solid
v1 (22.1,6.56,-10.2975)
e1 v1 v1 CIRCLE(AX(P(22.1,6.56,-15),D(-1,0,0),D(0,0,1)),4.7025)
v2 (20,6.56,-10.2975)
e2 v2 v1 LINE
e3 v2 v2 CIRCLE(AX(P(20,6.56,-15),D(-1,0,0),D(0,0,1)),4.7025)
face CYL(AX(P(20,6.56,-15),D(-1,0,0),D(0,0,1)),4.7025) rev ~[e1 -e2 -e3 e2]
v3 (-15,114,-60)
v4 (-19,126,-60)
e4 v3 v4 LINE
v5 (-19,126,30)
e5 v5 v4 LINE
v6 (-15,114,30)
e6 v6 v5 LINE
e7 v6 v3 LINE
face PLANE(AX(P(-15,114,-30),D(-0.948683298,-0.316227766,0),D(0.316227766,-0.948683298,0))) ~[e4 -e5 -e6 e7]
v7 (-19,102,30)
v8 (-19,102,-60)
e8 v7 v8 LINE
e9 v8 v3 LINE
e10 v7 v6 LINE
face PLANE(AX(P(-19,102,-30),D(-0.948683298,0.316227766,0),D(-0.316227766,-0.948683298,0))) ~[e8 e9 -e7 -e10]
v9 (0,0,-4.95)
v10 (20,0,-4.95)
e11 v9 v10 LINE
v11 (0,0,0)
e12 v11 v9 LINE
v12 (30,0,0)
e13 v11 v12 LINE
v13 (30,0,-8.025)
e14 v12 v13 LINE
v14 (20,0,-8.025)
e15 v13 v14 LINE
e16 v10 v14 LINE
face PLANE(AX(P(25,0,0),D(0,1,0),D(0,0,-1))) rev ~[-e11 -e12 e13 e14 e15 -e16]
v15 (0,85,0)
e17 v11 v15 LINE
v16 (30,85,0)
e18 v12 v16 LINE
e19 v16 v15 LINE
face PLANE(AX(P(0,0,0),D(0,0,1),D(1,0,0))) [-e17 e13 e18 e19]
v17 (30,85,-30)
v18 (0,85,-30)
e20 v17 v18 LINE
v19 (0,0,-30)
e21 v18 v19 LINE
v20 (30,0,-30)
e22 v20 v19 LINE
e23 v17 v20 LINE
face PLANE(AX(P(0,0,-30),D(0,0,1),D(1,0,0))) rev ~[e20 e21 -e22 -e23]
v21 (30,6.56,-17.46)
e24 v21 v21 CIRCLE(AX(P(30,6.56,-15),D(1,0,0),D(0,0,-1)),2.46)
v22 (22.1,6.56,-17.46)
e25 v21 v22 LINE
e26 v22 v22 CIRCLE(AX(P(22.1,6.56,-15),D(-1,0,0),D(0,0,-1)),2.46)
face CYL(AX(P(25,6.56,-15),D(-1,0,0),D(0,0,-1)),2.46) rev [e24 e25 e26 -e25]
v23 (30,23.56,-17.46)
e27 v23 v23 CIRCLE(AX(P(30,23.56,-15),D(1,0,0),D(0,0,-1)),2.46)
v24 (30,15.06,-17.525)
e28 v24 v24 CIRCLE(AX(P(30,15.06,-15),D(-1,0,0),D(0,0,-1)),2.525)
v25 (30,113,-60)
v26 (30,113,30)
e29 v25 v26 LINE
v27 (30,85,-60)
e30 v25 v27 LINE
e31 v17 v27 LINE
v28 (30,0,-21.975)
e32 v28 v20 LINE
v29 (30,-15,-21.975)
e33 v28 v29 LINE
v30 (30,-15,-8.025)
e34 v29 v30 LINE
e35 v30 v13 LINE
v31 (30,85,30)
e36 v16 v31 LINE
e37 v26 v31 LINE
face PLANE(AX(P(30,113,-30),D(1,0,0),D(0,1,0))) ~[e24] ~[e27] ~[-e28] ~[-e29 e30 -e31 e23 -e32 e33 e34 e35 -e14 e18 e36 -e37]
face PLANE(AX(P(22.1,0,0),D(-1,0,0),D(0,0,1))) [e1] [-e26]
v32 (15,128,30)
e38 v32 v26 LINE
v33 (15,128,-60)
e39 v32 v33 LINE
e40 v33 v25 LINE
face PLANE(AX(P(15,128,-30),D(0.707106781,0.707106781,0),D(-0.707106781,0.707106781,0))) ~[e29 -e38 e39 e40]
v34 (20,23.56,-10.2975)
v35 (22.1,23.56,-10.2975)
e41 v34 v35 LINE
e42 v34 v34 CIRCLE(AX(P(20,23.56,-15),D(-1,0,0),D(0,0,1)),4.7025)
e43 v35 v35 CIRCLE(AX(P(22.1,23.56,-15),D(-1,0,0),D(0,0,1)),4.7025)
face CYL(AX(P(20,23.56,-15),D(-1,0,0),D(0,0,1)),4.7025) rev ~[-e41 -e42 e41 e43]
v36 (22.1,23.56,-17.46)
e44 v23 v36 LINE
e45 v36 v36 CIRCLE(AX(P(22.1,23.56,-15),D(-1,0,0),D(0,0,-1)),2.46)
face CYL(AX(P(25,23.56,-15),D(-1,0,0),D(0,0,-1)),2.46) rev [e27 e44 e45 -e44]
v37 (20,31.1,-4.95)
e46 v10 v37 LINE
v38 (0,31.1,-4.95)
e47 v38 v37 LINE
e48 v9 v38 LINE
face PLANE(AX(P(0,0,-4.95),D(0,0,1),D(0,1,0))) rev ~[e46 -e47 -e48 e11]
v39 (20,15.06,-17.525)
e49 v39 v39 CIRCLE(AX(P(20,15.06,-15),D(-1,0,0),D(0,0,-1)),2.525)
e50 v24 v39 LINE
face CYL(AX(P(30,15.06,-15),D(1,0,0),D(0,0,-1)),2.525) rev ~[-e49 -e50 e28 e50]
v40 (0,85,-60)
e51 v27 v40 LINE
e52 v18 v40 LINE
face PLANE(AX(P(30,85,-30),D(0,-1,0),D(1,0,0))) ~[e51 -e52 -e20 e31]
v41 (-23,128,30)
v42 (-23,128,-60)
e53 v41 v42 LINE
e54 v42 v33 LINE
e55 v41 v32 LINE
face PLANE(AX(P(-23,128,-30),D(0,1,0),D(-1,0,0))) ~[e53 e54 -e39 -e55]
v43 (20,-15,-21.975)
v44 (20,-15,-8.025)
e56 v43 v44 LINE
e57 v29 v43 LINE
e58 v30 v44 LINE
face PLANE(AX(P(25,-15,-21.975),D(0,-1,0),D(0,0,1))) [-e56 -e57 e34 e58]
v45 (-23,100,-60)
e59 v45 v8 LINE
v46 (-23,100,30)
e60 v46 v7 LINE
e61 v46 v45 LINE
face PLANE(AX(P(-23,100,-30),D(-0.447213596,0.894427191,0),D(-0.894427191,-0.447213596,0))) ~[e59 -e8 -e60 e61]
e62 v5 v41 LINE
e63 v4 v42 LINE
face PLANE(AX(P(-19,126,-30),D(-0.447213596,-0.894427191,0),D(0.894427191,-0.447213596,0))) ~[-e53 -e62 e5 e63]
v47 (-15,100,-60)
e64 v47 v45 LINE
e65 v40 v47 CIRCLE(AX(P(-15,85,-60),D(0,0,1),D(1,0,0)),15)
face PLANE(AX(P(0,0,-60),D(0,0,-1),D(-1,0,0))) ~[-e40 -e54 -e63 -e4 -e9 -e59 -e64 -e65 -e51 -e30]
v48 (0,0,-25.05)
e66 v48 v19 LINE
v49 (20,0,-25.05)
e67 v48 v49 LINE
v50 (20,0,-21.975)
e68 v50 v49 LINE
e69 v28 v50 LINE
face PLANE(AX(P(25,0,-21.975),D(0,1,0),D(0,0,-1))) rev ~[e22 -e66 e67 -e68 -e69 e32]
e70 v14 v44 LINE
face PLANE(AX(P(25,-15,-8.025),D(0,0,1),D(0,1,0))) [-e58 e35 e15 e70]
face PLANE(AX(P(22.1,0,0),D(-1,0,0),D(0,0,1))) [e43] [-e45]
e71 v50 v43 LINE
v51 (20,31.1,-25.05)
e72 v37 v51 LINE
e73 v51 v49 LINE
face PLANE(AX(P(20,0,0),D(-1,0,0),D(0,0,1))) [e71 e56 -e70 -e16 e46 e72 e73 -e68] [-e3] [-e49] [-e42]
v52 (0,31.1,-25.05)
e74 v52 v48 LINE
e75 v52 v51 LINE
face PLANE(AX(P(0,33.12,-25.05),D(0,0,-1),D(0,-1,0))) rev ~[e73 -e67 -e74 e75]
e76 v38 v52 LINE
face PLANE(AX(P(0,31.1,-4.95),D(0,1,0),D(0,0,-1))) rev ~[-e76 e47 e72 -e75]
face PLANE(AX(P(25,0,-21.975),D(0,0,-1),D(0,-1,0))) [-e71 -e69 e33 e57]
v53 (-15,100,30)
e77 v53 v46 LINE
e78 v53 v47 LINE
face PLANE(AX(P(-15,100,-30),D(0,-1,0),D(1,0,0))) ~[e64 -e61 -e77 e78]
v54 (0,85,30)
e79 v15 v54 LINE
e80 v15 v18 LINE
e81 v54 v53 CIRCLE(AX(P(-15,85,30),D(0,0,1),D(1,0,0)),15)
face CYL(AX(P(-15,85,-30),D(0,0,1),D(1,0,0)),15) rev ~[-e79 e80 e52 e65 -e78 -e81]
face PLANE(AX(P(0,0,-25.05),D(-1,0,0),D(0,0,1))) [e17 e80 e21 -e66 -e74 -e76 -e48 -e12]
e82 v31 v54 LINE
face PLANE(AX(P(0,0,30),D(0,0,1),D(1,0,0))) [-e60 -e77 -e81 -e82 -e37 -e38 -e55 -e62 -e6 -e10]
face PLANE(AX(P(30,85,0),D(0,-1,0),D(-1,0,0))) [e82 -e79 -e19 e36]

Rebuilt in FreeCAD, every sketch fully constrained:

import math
import FreeCAD as App
import Part
import Sketcher
from FreeCAD import Vector
Q = App.Units.Quantity

doc = App.newDocument("Part")
body = doc.addObject("PartDesign::Body", "Body")

# Sketch on XY plane
sketch1 = body.newObject("Sketcher::SketchObject", "Sketch")
sketch1.AttachmentSupport = (doc.getObject("XY_Plane"), [""])
sketch1.MapMode = "FlatFace"
sketch1.addGeometry([
    Part.LineSegment(Vector(0, 40, 0), Vector(0, 0, 0)),
    Part.LineSegment(Vector(0, 0, 0), Vector(25, 0, 0)),
    Part.LineSegment(Vector(25, 0, 0), Vector(25, 40, 0)),
    Part.LineSegment(Vector(25, 40, 0), Vector(0, 40, 0)),
], False)
sketch1.addConstraint([
    Sketcher.Constraint("Coincident", 0, 2, 1, 1),
    Sketcher.Constraint("Coincident", 1, 2, 2, 1),
    Sketcher.Constraint("Coincident", 2, 2, 3, 1),
    Sketcher.Constraint("Coincident", 3, 2, 0, 1),
    Sketcher.Constraint("Vertical", 0),
    Sketcher.Constraint("Horizontal", 1),
    Sketcher.Constraint("Vertical", 2),
    Sketcher.Constraint("Horizontal", 3),
    Sketcher.Constraint("Coincident", 0, 2, -1, 1),
    Sketcher.Constraint("DistanceX", 1, 1, 1, 2, 25.0),
    Sketcher.Constraint("DistanceY", 0, 2, 0, 1, 40.0),
])
pad1 = body.newObject("PartDesign::Pad", "Pad")
pad1.Profile = sketch1
pad1.Length = 30
pad1.Reversed = True

# Sketch on YZ plane
sketch2 = body.newObject("Sketcher::SketchObject", "Sketch001")
sketch2.AttachmentSupport = (doc.getObject("YZ_Plane"), [""])
sketch2.MapMode = "FlatFace"
sketch2.AttachmentOffset = App.Placement(Vector(0, 0, 25), App.Rotation())
sketch2.addGeometry(Part.Circle(Vector(6.6, -15, 0), Vector(0, 0, 1), 2.5), False)
sketch2.addConstraint([
    Sketcher.Constraint("Diameter", 0, 4.92),
    Sketcher.Constraint("DistanceY", 0, 3, -1, 1, 15.0),
    Sketcher.Constraint("DistanceX", -1, 1, 0, 3, 6.56),
])
pocket1 = body.newObject("PartDesign::Pocket", "Pocket")
pocket1.Profile = sketch2
pocket1.Length = 30

# Sketch on YZ plane
sketch3 = body.newObject("Sketcher::SketchObject", "Sketch002")
sketch3.AttachmentSupport = (doc.getObject("YZ_Plane"), [""])
sketch3.MapMode = "FlatFace"
sketch3.addGeometry([
    Part.LineSegment(Vector(0, -25, 0), Vector(0, -5, 0)),
    Part.LineSegment(Vector(0, -5, 0), Vector(33, -5, 0)),
    Part.LineSegment(Vector(33, -5, 0), Vector(33, -25, 0)),
    Part.LineSegment(Vector(33, -25, 0), Vector(0, -25, 0)),
], False)
sketch3.addConstraint([
    Sketcher.Constraint("Coincident", 0, 2, 1, 1),
    Sketcher.Constraint("Coincident", 1, 2, 2, 1),
    Sketcher.Constraint("Coincident", 2, 2, 3, 1),
    Sketcher.Constraint("Coincident", 3, 2, 0, 1),
    Sketcher.Constraint("Vertical", 0),
    Sketcher.Constraint("Horizontal", 1),
    Sketcher.Constraint("Vertical", 2),
    Sketcher.Constraint("Horizontal", 3),
    Sketcher.Constraint("PointOnObject", 0, 2, -2),
    Sketcher.Constraint("DistanceY", 0, 1, 0, 2, 20.1),
    Sketcher.Constraint("DistanceX", 1, 1, 1, 2, 33.12),
    Sketcher.Constraint("DistanceY", 0, 2, -1, 1, 4.95),
])
pocket2 = body.newObject("PartDesign::Pocket", "Pocket001")
pocket2.Profile = sketch3
pocket2.Length = 20
pocket2.Reversed = True

# Sketch on XZ plane
sketch4 = body.newObject("Sketcher::SketchObject", "Sketch003")
sketch4.AttachmentSupport = (doc.getObject("XZ_Plane"), [""])
sketch4.MapMode = "FlatFace"
sketch4.addGeometry([
    Part.LineSegment(Vector(25, -8, 0), Vector(20, -8, 0)),
    Part.LineSegment(Vector(20, -8, 0), Vector(20, -22, 0)),
    Part.LineSegment(Vector(20, -22, 0), Vector(25, -22, 0)),
    Part.LineSegment(Vector(25, -22, 0), Vector(25, -8, 0)),
], False)
sketch4.addConstraint([
    Sketcher.Constraint("Coincident", 0, 2, 1, 1),
    Sketcher.Constraint("Coincident", 1, 2, 2, 1),
    Sketcher.Constraint("Coincident", 2, 2, 3, 1),
    Sketcher.Constraint("Coincident", 3, 2, 0, 1),
    Sketcher.Constraint("Horizontal", 0),
    Sketcher.Constraint("Vertical", 1),
    Sketcher.Constraint("Horizontal", 2),
    Sketcher.Constraint("Vertical", 3),
    Sketcher.Constraint("DistanceY", 1, 2, 1, 1, 13.95),
    Sketcher.Constraint("DistanceX", 0, 2, 0, 1, 5.0),
    Sketcher.Constraint("DistanceX", -1, 1, 0, 2, 20.0),
    Sketcher.Constraint("DistanceY", 0, 2, -1, 1, 8.025),
])
pad2 = body.newObject("PartDesign::Pad", "Pad001")
pad2.Profile = sketch4
pad2.Length = 15

# Sketch on YZ plane
sketch5 = body.newObject("Sketcher::SketchObject", "Sketch004")
sketch5.AttachmentSupport = (doc.getObject("YZ_Plane"), [""])
sketch5.MapMode = "FlatFace"
sketch5.AttachmentOffset = App.Placement(Vector(0, 0, 20), App.Rotation())
sketch5.addGeometry([
    Part.Circle(Vector(6.6, -15, 0), Vector(0, 0, 1), 4.7),
    Part.Circle(Vector(6.6, -15, 0), Vector(0, 0, 1), 2.5),
], False)
sketch5.addConstraint([
    Sketcher.Constraint("Coincident", 1, 3, 0, 3),
    Sketcher.Constraint("Diameter", 0, 9.405),
    Sketcher.Constraint("Diameter", 1, 4.92),
    Sketcher.Constraint("DistanceY", 0, 3, -1, 1, 15.0),
    Sketcher.Constraint("DistanceX", -1, 1, 0, 3, 6.56),
])
pocket3 = body.newObject("PartDesign::Pocket", "Pocket002")
pocket3.Profile = sketch5
pocket3.Length = 2.1
pocket3.Reversed = True

# Sketch on YZ plane
sketch6 = body.newObject("Sketcher::SketchObject", "Sketch005")
sketch6.AttachmentSupport = (doc.getObject("YZ_Plane"), [""])
sketch6.MapMode = "FlatFace"
sketch6.AttachmentOffset = App.Placement(Vector(0, 0, 25), App.Rotation())
sketch6.addGeometry(Part.Circle(Vector(23.6, -15, 0), Vector(0, 0, 1), 2.5), False)
sketch6.addConstraint([
    Sketcher.Constraint("Diameter", 0, 4.92),
    Sketcher.Constraint("DistanceY", 0, 3, -1, 1, 15.0),
    Sketcher.Constraint("DistanceX", -1, 1, 0, 3, 23.56),
])
pocket4 = body.newObject("PartDesign::Pocket", "Pocket003")
pocket4.Profile = sketch6
pocket4.Length = 10

# Sketch on YZ plane
sketch7 = body.newObject("Sketcher::SketchObject", "Sketch006")
sketch7.AttachmentSupport = (doc.getObject("YZ_Plane"), [""])
sketch7.MapMode = "FlatFace"
sketch7.AttachmentOffset = App.Placement(Vector(0, 0, 20), App.Rotation())
sketch7.addGeometry([
    Part.Circle(Vector(23.6, -15, 0), Vector(0, 0, 1), 4.7),
    Part.Circle(Vector(23.6, -15, 0), Vector(0, 0, 1), 2.5),
], False)
sketch7.addConstraint([
    Sketcher.Constraint("Coincident", 1, 3, 0, 3),
    Sketcher.Constraint("Diameter", 0, 9.405),
    Sketcher.Constraint("Diameter", 1, 4.92),
    Sketcher.Constraint("DistanceY", 0, 3, -1, 1, 15.0),
    Sketcher.Constraint("DistanceX", -1, 1, 0, 3, 23.56),
])
pocket5 = body.newObject("PartDesign::Pocket", "Pocket004")
pocket5.Profile = sketch7
pocket5.Length = 2.1
pocket5.Reversed = True

# Sketch on YZ plane
sketch8 = body.newObject("Sketcher::SketchObject", "Sketch007")
sketch8.AttachmentSupport = (doc.getObject("YZ_Plane"), [""])
sketch8.MapMode = "FlatFace"
sketch8.AttachmentOffset = App.Placement(Vector(0, 0, 25), App.Rotation())
sketch8.addGeometry([
    Part.LineSegment(Vector(0, -30, 0), Vector(40, -30, 0)),  # 0
    Part.LineSegment(Vector(40, -30, 0), Vector(40, 0, 0)),  # 1
    Part.LineSegment(Vector(40, 0, 0), Vector(0, 0, 0)),  # 2
    Part.LineSegment(Vector(0, 0, 0), Vector(0, -8, 0)),  # 3
    Part.LineSegment(Vector(0, -8, 0), Vector(-15, -8, 0)),  # 4
    Part.LineSegment(Vector(-15, -8, 0), Vector(-15, -22, 0)),  # 5
    Part.LineSegment(Vector(-15, -22, 0), Vector(0, -22, 0)),  # 6
    Part.LineSegment(Vector(0, -22, 0), Vector(0, -30, 0)),  # 7
    Part.Circle(Vector(6.6, -15, 0), Vector(0, 0, 1), 2.5),  # 8
    Part.Circle(Vector(23.6, -15, 0), Vector(0, 0, 1), 2.5),  # 9
], False)
sketch8.addConstraint([
    Sketcher.Constraint("Coincident", 0, 2, 1, 1),
    Sketcher.Constraint("Coincident", 1, 2, 2, 1),
    Sketcher.Constraint("Coincident", 2, 2, 3, 1),
    Sketcher.Constraint("Coincident", 3, 2, 4, 1),
    Sketcher.Constraint("Coincident", 4, 2, 5, 1),
    Sketcher.Constraint("Coincident", 5, 2, 6, 1),
    Sketcher.Constraint("Coincident", 6, 2, 7, 1),
    Sketcher.Constraint("Coincident", 7, 2, 0, 1),
    Sketcher.Constraint("Horizontal", 0),
    Sketcher.Constraint("Vertical", 1),
    Sketcher.Constraint("Horizontal", 2),
    Sketcher.Constraint("Vertical", 3),
    Sketcher.Constraint("Horizontal", 4),
    Sketcher.Constraint("Vertical", 5),
    Sketcher.Constraint("Horizontal", 6),
    Sketcher.Constraint("Vertical", 7),
    Sketcher.Constraint("Coincident", 2, 2, -1, 1),
    Sketcher.Constraint("Equal", 8, 9),
    Sketcher.Constraint("PointOnObject", 6, 2, -2),
    Sketcher.Constraint("Horizontal", 8, 3, 9, 3),
    Sketcher.Constraint("Equal", 3, 7),
    Sketcher.Constraint("Diameter", 8, 4.92),
    Sketcher.Constraint("DistanceX", 0, 1, 0, 2, 40.0),
    Sketcher.Constraint("DistanceX", 4, 2, 4, 1, 15.0),
    Sketcher.Constraint("DistanceY", 1, 1, 1, 2, 30.0),
    Sketcher.Constraint("DistanceY", 8, 3, -1, 1, 15.0),
    Sketcher.Constraint("DistanceX", 8, 3, 9, 3, 17.0),
    Sketcher.Constraint("DistanceY", 5, 2, 5, 1, 13.95),
    Sketcher.Constraint("DistanceX", -1, 1, 8, 3, 6.56),
])
pad3 = body.newObject("PartDesign::Pad", "Pad002")
pad3.Profile = sketch8
pad3.Length = 5

# Sketch on XZ plane
sketch9 = body.newObject("Sketcher::SketchObject", "Sketch008")
sketch9.AttachmentSupport = (doc.getObject("XZ_Plane"), [""])
sketch9.MapMode = "FlatFace"
sketch9.AttachmentOffset = App.Placement(Vector(0, 0, -40), App.Rotation())
sketch9.addGeometry([
    Part.LineSegment(Vector(30, -30, 0), Vector(0, -30, 0)),
    Part.LineSegment(Vector(0, -30, 0), Vector(0, 0, 0)),
    Part.LineSegment(Vector(0, 0, 0), Vector(30, 0, 0)),
    Part.LineSegment(Vector(30, 0, 0), Vector(30, -30, 0)),
], False)
sketch9.addConstraint([
    Sketcher.Constraint("Coincident", 0, 2, 1, 1),
    Sketcher.Constraint("Coincident", 1, 2, 2, 1),
    Sketcher.Constraint("Coincident", 2, 2, 3, 1),
    Sketcher.Constraint("Coincident", 3, 2, 0, 1),
    Sketcher.Constraint("Horizontal", 0),
    Sketcher.Constraint("Vertical", 1),
    Sketcher.Constraint("Horizontal", 2),
    Sketcher.Constraint("Vertical", 3),
    Sketcher.Constraint("Coincident", 1, 2, -1, 1),
    Sketcher.Constraint("Equal", 2, 1),
    Sketcher.Constraint("DistanceX", 0, 2, 0, 1, 30.0),
])
pad4 = body.newObject("PartDesign::Pad", "Pad003")
pad4.Profile = sketch9
pad4.Length = 30
pad4.Reversed = True

# Sketch on YZ plane
sketch10 = body.newObject("Sketcher::SketchObject", "Sketch009")
sketch10.AttachmentSupport = (doc.getObject("YZ_Plane"), [""])
sketch10.MapMode = "FlatFace"
sketch10.AttachmentOffset = App.Placement(Vector(0, 0, 30), App.Rotation())
sketch10.addGeometry(Part.Circle(Vector(15.1, -15, 0), Vector(0, 0, 1), 2.5), False)
sketch10.addConstraint([
    Sketcher.Constraint("Diameter", 0, 5.05),
    Sketcher.Constraint("DistanceY", 0, 3, -1, 1, 15.0),
    Sketcher.Constraint("DistanceX", -1, 1, 0, 3, 15.06),
])
pocket6 = body.newObject("PartDesign::Pocket", "Pocket005")
pocket6.Profile = sketch10
pocket6.Length = 30

# Sketch on XY plane
sketch11 = body.newObject("Sketcher::SketchObject", "Sketch010")
sketch11.AttachmentSupport = (doc.getObject("XY_Plane"), [""])
sketch11.MapMode = "FlatFace"
sketch11.addGeometry([
    Part.LineSegment(Vector(0, 70, 0), Vector(30, 70, 0)),  # 0
    Part.LineSegment(Vector(30, 70, 0), Vector(30, 113, 0)),  # 1
    Part.LineSegment(Vector(30, 113, 0), Vector(15, 128, 0)),  # 2
    Part.LineSegment(Vector(15, 128, 0), Vector(-23, 128, 0)),  # 3
    Part.LineSegment(Vector(-23, 128, 0), Vector(-19, 126, 0)),  # 4
    Part.LineSegment(Vector(-19, 126, 0), Vector(-15, 114, 0)),  # 5
    Part.LineSegment(Vector(-15, 114, 0), Vector(-19, 102, 0)),  # 6
    Part.LineSegment(Vector(-19, 102, 0), Vector(-23, 100, 0)),  # 7
    Part.LineSegment(Vector(-23, 100, 0), Vector(-15, 100, 0)),  # 8
    Part.ArcOfCircle(Part.Circle(Vector(-15, 85, 0), Vector(0, 0, 1), 15), math.radians(0), math.radians(90)),  # 9
    Part.LineSegment(Vector(0, 85, 0), Vector(0, 70, 0)),  # 10
], False)
sketch11.addConstraint([
    Sketcher.Constraint("Coincident", 0, 2, 1, 1),
    Sketcher.Constraint("Coincident", 1, 2, 2, 1),
    Sketcher.Constraint("Coincident", 2, 2, 3, 1),
    Sketcher.Constraint("Coincident", 3, 2, 4, 1),
    Sketcher.Constraint("Coincident", 4, 2, 5, 1),
    Sketcher.Constraint("Coincident", 5, 2, 6, 1),
    Sketcher.Constraint("Coincident", 6, 2, 7, 1),
    Sketcher.Constraint("Coincident", 7, 2, 8, 1),
    Sketcher.Constraint("Tangent", 8, 2, 9, 2),
    Sketcher.Constraint("Tangent", 9, 1, 10, 1),
    Sketcher.Constraint("Coincident", 10, 2, 0, 1),
    Sketcher.Constraint("Horizontal", 0),
    Sketcher.Constraint("Vertical", 1),
    Sketcher.Constraint("Horizontal", 3),
    Sketcher.Constraint("Horizontal", 8),
    Sketcher.Constraint("Vertical", 10),
    Sketcher.Constraint("PointOnObject", 9, 1, -2),
    Sketcher.Constraint("Vertical", 9, 3, 5, 2),
    Sketcher.Constraint("Vertical", 4, 2, 6, 2),
    Sketcher.Constraint("Vertical", 3, 2, 7, 2),
    Sketcher.Constraint("Equal", 5, 6),
    Sketcher.Constraint("Equal", 4, 7),
    Sketcher.Constraint("Radius", 9, 15.0),
    Sketcher.Constraint("DistanceX", 0, 1, 0, 2, 30.0),
    Sketcher.Constraint("DistanceY", 10, 2, 10, 1, 15.0),
    Sketcher.Constraint("DistanceX", -1, 1, 2, 2, 15.0),
    Sketcher.Constraint("DistanceY", 9, 3, 1, 2, 28.0),
    Sketcher.Constraint("DistanceY", 1, 2, 2, 2, 15.0),
    Sketcher.Constraint("DistanceX", 3, 2, 3, 1, 38.0),
    Sketcher.Constraint("DistanceY", -1, 1, 9, 3, 85.0),
    Sketcher.Constraint("DistanceX", 4, 2, -1, 1, 19.0),
    Sketcher.Constraint("DistanceY", -1, 1, 4, 2, 126.0),
])
pad5 = body.newObject("PartDesign::Pad", "Pad004")
pad5.Profile = sketch11
pad5.Length = 30
pad5.Reversed = True

# Sketch on YZ plane
sketch12 = body.newObject("Sketcher::SketchObject", "Sketch011")
sketch12.AttachmentSupport = (doc.getObject("YZ_Plane"), [""])
sketch12.MapMode = "FlatFace"
sketch12.addGeometry([
    Part.LineSegment(Vector(33.1, -5, 0), Vector(33.1, -25.1, 0)),
    Part.LineSegment(Vector(33.1, -25.1, 0), Vector(31.1, -25.1, 0)),
    Part.LineSegment(Vector(31.1, -25.1, 0), Vector(31.1, -5, 0)),
    Part.LineSegment(Vector(31.1, -5, 0), Vector(33.1, -5, 0)),
], False)
sketch12.addConstraint([
    Sketcher.Constraint("Coincident", 0, 2, 1, 1),
    Sketcher.Constraint("Coincident", 1, 2, 2, 1),
    Sketcher.Constraint("Coincident", 2, 2, 3, 1),
    Sketcher.Constraint("Coincident", 3, 2, 0, 1),
    Sketcher.Constraint("Vertical", 0),
    Sketcher.Constraint("Horizontal", 1),
    Sketcher.Constraint("Vertical", 2),
    Sketcher.Constraint("Horizontal", 3),
    Sketcher.Constraint("DistanceX", 1, 2, 1, 1, 2.02),
    Sketcher.Constraint("DistanceY", 0, 2, 0, 1, 20.1),
    Sketcher.Constraint("DistanceX", -1, 1, 1, 2, 31.1),
    Sketcher.Constraint("DistanceY", 0, 2, -1, 1, 25.05),
])
pad6 = body.newObject("PartDesign::Pad", "Pad005")
pad6.Profile = sketch12
pad6.Length = 20

# Sketch on XY plane
sketch13 = body.newObject("Sketcher::SketchObject", "Sketch012")
sketch13.AttachmentSupport = (doc.getObject("XY_Plane"), [""])
sketch13.MapMode = "FlatFace"
sketch13.addGeometry([
    Part.ArcOfCircle(Part.Circle(Vector(-15, 85, 0), Vector(0, 0, 1), 15), math.radians(0), math.radians(90)),  # 0
    Part.LineSegment(Vector(0, 85, 0), Vector(30, 85, 0)),  # 1
    Part.LineSegment(Vector(30, 85, 0), Vector(30, 113, 0)),  # 2
    Part.LineSegment(Vector(30, 113, 0), Vector(15, 128, 0)),  # 3
    Part.LineSegment(Vector(15, 128, 0), Vector(-23, 128, 0)),  # 4
    Part.LineSegment(Vector(-23, 128, 0), Vector(-19, 126, 0)),  # 5
    Part.LineSegment(Vector(-19, 126, 0), Vector(-15, 114, 0)),  # 6
    Part.LineSegment(Vector(-15, 114, 0), Vector(-19, 102, 0)),  # 7
    Part.LineSegment(Vector(-19, 102, 0), Vector(-23, 100, 0)),  # 8
    Part.LineSegment(Vector(-23, 100, 0), Vector(-15, 100, 0)),  # 9
], False)
sketch13.addConstraint([
    Sketcher.Constraint("Coincident", 0, 1, 1, 1),
    Sketcher.Constraint("Coincident", 1, 2, 2, 1),
    Sketcher.Constraint("Coincident", 2, 2, 3, 1),
    Sketcher.Constraint("Coincident", 3, 2, 4, 1),
    Sketcher.Constraint("Coincident", 4, 2, 5, 1),
    Sketcher.Constraint("Coincident", 5, 2, 6, 1),
    Sketcher.Constraint("Coincident", 6, 2, 7, 1),
    Sketcher.Constraint("Coincident", 7, 2, 8, 1),
    Sketcher.Constraint("Coincident", 8, 2, 9, 1),
    Sketcher.Constraint("Tangent", 9, 2, 0, 2),
    Sketcher.Constraint("Horizontal", 1),
    Sketcher.Constraint("Vertical", 2),
    Sketcher.Constraint("Horizontal", 4),
    Sketcher.Constraint("Horizontal", 9),
    Sketcher.Constraint("PointOnObject", 0, 1, -2),
    Sketcher.Constraint("Vertical", 0, 3, 6, 2),
    Sketcher.Constraint("Vertical", 5, 2, 7, 2),
    Sketcher.Constraint("Vertical", 4, 2, 8, 2),
    Sketcher.Constraint("Equal", 6, 7),
    Sketcher.Constraint("Equal", 5, 8),
    Sketcher.Constraint("Radius", 0, 15.0),
    Sketcher.Constraint("DistanceX", 1, 1, 1, 2, 30.0),
    Sketcher.Constraint("DistanceX", 4, 2, 4, 1, 38.0),
    Sketcher.Constraint("DistanceX", 9, 1, 9, 2, 8.0),
    Sketcher.Constraint("DistanceY", 2, 1, 2, 2, 28.0),
    Sketcher.Constraint("Angle", 3, Q("135 deg")),
    Sketcher.Constraint("DistanceY", -1, 1, 0, 3, 85.0),
    Sketcher.Constraint("DistanceY", -1, 1, 0, 1, 85.0),
    Sketcher.Constraint("DistanceX", 5, 2, -1, 1, 19.0),
    Sketcher.Constraint("DistanceY", -1, 1, 5, 2, 126.0),
])
pad7 = body.newObject("PartDesign::Pad", "Pad006")
pad7.Profile = sketch13
pad7.Length = 30
doc.recompute()

datumplane = body.newObject("PartDesign::Plane", "DatumPlane")
datumplane.AttachmentSupport = (doc.getObject("XY_Plane"), [""])
datumplane.MapMode = "FlatFace"
datumplane.AttachmentOffset = App.Placement(Vector(0, 0, -15), App.Rotation())
mirrored = body.newObject("PartDesign::Mirrored", "Mirrored")
mirrored.Originals = [pad7]
mirrored.MirrorPlane = (datumplane, [""])
body.Tip = mirrored

doc.recompute()
